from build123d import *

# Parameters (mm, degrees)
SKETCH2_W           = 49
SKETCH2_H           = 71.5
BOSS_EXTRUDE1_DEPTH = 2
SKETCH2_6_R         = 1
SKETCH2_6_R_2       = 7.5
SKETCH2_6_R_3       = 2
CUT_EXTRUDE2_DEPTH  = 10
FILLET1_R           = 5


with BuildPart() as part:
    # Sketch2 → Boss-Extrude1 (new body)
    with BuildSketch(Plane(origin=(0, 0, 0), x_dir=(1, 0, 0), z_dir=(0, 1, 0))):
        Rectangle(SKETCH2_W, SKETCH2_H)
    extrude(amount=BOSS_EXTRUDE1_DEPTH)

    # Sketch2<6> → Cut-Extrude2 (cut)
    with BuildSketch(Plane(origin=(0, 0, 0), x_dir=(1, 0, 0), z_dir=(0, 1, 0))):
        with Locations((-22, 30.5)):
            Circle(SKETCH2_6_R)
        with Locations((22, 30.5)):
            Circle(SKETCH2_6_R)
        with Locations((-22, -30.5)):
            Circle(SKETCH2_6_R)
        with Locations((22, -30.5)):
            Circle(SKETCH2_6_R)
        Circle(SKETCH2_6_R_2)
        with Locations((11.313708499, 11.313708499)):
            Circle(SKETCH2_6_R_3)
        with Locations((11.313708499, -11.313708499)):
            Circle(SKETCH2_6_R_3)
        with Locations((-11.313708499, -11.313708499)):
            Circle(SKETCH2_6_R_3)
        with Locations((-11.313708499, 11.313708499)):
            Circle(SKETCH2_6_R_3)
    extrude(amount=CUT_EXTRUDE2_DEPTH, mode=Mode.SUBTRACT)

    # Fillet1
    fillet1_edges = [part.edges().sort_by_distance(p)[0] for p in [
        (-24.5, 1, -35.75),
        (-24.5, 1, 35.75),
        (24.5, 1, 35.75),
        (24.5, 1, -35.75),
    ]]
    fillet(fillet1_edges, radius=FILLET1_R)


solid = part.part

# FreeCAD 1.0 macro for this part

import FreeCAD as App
import Part
import Sketcher


def edges_at(feature, points):
    """Names of the edges that pass closest to the given points."""
    edges = feature.Shape.Edges
    near = lambda p: min(range(len(edges)), key=lambda i: edges[i].distToShape(Part.Vertex(*p))[0])
    return sorted({f"Edge{near(p) + 1}" for p in points})

doc = App.newDocument("Part")
params = doc.addObject("Spreadsheet::Sheet", "Params")
for row, (alias, value) in enumerate([
    ("sketch1_width", "49 mm"),
    ("sketch1_height", "71.5 mm"),
    ("pad1_length", "2 mm"),
    ("sketch2_diameter", "2 mm"),
    ("sketch2_diameter2", "15 mm"),
    ("sketch2_diameter3", "4 mm"),
    ("pocket1_length", "10 mm"),
    ("fillet_radius", "5 mm"),
], start=1):
    params.set(f"A{row}", alias)
    params.set(f"B{row}", "=" + value)
    params.setAlias(f"B{row}", alias)

body = doc.addObject("PartDesign::Body", "Body")

# Sketch on XZ plane
sketch1 = doc.addObject("Sketcher::SketchObject", "Sketch")
body.addObject(sketch1)
sketch1.AttachmentSupport = (doc.XZ_Plane, [""])
sketch1.MapMode = "FlatFace"
sketch1.addGeometry(Part.LineSegment(App.Vector(-24, -36, 0), App.Vector(-24, 36, 0)), False)
sketch1.addGeometry(Part.LineSegment(App.Vector(-24, 36, 0), App.Vector(24, 36, 0)), False)
sketch1.addGeometry(Part.LineSegment(App.Vector(24, 36, 0), App.Vector(24, -36, 0)), False)
sketch1.addGeometry(Part.LineSegment(App.Vector(24, -36, 0), App.Vector(-24, -36, 0)), False)
sketch1.addConstraint(Sketcher.Constraint("Coincident", 0, 2, 1, 1))
sketch1.addConstraint(Sketcher.Constraint("Coincident", 1, 2, 2, 1))
sketch1.addConstraint(Sketcher.Constraint("Coincident", 2, 2, 3, 1))
sketch1.addConstraint(Sketcher.Constraint("Coincident", 3, 2, 0, 1))
sketch1.addConstraint(Sketcher.Constraint("Vertical", 0))
sketch1.addConstraint(Sketcher.Constraint("Horizontal", 1))
sketch1.addConstraint(Sketcher.Constraint("Vertical", 2))
sketch1.addConstraint(Sketcher.Constraint("Horizontal", 3))
sketch1.addConstraint(Sketcher.Constraint("Symmetric", 0, 2, 2, 2, -1, 1))
sketch1.addConstraint(Sketcher.Constraint("DistanceX", 1, 1, 1, 2, 49.0))
sketch1.addConstraint(Sketcher.Constraint("DistanceY", 0, 1, 0, 2, 71.5))
sketch1.setExpression("Constraints[9]", "Params.sketch1_width")
sketch1.setExpression("Constraints[10]", "Params.sketch1_height")
pad1 = doc.addObject("PartDesign::Pad", "Pad")
body.addObject(pad1)
pad1.Profile = sketch1
pad1.setExpression("Length", "Params.pad1_length")
pad1.Reversed = True

# Sketch on XZ plane
sketch2 = doc.addObject("Sketcher::SketchObject", "Sketch001")
body.addObject(sketch2)
sketch2.AttachmentSupport = (doc.XZ_Plane, [""])
sketch2.MapMode = "FlatFace"
sketch2.addGeometry(Part.Circle(App.Vector(-22, -30.5, 0), App.Vector(0, 0, 1), 1), False)
sketch2.addGeometry(Part.Circle(App.Vector(22, -30.5, 0), App.Vector(0, 0, 1), 1), False)
sketch2.addGeometry(Part.Circle(App.Vector(-22, 30.5, 0), App.Vector(0, 0, 1), 1), False)
sketch2.addGeometry(Part.Circle(App.Vector(22, 30.5, 0), App.Vector(0, 0, 1), 1), False)
sketch2.addGeometry(Part.Circle(App.Vector(0, 0, 0), App.Vector(0, 0, 1), 7.5), False)
sketch2.addGeometry(Part.Circle(App.Vector(11.3, -11.3, 0), App.Vector(0, 0, 1), 2), False)
sketch2.addGeometry(Part.Circle(App.Vector(11.3, 11.3, 0), App.Vector(0, 0, 1), 2), False)
sketch2.addGeometry(Part.Circle(App.Vector(-11.3, 11.3, 0), App.Vector(0, 0, 1), 2), False)
sketch2.addGeometry(Part.Circle(App.Vector(-11.3, -11.3, 0), App.Vector(0, 0, 1), 2), False)
sketch2.addConstraint(Sketcher.Constraint("Coincident", 4, 3, -1, 1))
sketch2.addConstraint(Sketcher.Constraint("Equal", 0, 1))
sketch2.addConstraint(Sketcher.Constraint("Equal", 1, 2))
sketch2.addConstraint(Sketcher.Constraint("Equal", 2, 3))
sketch2.addConstraint(Sketcher.Constraint("Equal", 5, 6))
sketch2.addConstraint(Sketcher.Constraint("Equal", 6, 7))
sketch2.addConstraint(Sketcher.Constraint("Equal", 7, 8))
sketch2.addConstraint(Sketcher.Constraint("Symmetric", 1, 3, 2, 3, -1, 1))
sketch2.addConstraint(Sketcher.Constraint("Symmetric", 0, 3, 3, 3, -1, 1))
sketch2.addConstraint(Sketcher.Constraint("Symmetric", 5, 3, 7, 3, -1, 1))
sketch2.addConstraint(Sketcher.Constraint("Symmetric", 6, 3, 8, 3, -1, 1))
sketch2.addConstraint(Sketcher.Constraint("Symmetric", 0, 3, 1, 3, -2))
sketch2.addConstraint(Sketcher.Constraint("Symmetric", 6, 3, 7, 3, -2))
sketch2.addConstraint(Sketcher.Constraint("Diameter", 0, 2.0))
sketch2.addConstraint(Sketcher.Constraint("Diameter", 4, 15.0))
sketch2.addConstraint(Sketcher.Constraint("Diameter", 5, 4.0))
sketch2.addConstraint(Sketcher.Constraint("DistanceX", 0, 3, -1, 1, 22.0))
sketch2.addConstraint(Sketcher.Constraint("DistanceY", 0, 3, 2, 3, 61.0))
sketch2.addConstraint(Sketcher.Constraint("DistanceX", -1, 1, 5, 3, 11.313708))
sketch2.addConstraint(Sketcher.Constraint("DistanceY", 5, 3, -1, 1, 11.313708))
sketch2.setExpression("Constraints[13]", "Params.sketch2_diameter")
sketch2.setExpression("Constraints[14]", "Params.sketch2_diameter2")
sketch2.setExpression("Constraints[15]", "Params.sketch2_diameter3")
pocket1 = doc.addObject("PartDesign::Pocket", "Pocket")
body.addObject(pocket1)
pocket1.Profile = sketch2
pocket1.setExpression("Length", "Params.pocket1_length")
doc.recompute()

fillet = doc.addObject("PartDesign::Fillet", "Fillet")
body.addObject(fillet)
fillet.Base = (pocket1, edges_at(pocket1, [
    (-24.5, 1, -35.75),
    (-24.5, 1, 35.75),
    (24.5, 1, 35.75),
    (24.5, 1, -35.75),
]))
fillet.setExpression("Radius", "Params.fillet_radius")

doc.recompute()
